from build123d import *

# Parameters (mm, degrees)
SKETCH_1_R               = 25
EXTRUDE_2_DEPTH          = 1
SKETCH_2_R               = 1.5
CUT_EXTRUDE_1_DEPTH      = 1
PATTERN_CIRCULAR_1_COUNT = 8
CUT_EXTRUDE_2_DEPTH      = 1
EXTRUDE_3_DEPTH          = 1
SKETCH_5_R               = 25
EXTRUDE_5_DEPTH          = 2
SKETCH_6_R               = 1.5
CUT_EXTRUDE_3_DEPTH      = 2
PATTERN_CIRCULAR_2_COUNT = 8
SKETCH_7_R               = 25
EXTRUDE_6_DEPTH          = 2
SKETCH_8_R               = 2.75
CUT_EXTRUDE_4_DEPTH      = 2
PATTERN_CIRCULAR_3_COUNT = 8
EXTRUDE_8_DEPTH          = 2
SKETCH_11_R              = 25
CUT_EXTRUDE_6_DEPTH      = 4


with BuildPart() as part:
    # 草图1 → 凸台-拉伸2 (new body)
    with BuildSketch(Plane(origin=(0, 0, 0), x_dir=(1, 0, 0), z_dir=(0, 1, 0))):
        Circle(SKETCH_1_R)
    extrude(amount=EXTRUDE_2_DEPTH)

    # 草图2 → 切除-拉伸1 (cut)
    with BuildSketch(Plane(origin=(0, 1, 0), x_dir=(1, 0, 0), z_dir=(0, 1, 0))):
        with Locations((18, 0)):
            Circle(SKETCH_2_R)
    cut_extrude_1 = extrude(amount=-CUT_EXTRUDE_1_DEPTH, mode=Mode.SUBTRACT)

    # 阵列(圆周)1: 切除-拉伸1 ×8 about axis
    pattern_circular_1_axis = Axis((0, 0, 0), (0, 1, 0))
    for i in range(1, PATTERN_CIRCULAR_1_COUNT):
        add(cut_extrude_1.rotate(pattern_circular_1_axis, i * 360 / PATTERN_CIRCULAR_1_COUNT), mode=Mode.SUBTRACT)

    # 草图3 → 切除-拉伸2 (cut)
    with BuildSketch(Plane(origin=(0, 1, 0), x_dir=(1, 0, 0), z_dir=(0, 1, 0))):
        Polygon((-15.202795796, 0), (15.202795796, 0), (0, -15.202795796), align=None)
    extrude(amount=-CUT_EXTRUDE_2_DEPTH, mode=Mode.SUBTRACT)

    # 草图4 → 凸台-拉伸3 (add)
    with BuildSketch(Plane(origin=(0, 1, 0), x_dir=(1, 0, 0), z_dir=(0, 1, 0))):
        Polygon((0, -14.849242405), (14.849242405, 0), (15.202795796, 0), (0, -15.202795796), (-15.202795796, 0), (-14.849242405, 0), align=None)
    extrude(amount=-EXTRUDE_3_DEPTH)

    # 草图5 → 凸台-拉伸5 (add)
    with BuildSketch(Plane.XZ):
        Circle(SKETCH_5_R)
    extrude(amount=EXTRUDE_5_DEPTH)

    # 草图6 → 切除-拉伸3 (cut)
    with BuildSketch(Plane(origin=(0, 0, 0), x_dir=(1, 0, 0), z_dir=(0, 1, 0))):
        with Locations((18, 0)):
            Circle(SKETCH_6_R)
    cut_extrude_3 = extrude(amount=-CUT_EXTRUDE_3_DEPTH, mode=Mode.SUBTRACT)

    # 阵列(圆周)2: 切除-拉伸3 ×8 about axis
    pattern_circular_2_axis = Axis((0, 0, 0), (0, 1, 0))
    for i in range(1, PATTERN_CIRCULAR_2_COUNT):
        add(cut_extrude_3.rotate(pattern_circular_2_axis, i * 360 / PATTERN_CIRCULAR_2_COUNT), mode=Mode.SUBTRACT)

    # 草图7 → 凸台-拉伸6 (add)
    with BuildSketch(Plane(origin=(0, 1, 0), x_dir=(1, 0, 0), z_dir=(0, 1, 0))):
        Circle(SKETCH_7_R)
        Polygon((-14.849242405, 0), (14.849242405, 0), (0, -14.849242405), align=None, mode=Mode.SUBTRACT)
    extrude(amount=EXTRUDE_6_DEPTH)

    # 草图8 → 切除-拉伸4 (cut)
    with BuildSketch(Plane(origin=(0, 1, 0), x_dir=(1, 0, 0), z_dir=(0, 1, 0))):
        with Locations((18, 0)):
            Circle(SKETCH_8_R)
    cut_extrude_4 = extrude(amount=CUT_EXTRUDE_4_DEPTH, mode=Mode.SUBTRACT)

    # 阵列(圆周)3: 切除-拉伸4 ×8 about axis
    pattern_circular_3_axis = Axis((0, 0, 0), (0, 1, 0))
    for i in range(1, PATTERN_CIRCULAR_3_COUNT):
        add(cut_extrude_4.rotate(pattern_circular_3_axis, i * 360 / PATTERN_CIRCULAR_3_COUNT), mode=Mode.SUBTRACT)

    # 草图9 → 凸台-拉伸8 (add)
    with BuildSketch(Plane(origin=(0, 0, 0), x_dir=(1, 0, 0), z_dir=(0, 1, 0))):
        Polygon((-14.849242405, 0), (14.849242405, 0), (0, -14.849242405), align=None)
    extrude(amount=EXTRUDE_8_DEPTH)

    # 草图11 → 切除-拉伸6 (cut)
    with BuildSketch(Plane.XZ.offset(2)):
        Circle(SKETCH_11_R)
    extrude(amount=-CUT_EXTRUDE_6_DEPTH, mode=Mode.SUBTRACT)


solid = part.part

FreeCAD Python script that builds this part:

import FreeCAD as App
import Part
import Sketcher

doc = App.newDocument("Part")
params = doc.addObject("Spreadsheet::Sheet", "Params")
for row, (alias, value) in enumerate([
    ("sketch1_diameter", "50 mm"),
    ("pad1_length", "1 mm"),
    ("sketch2_diameter", "3 mm"),
    ("pocket1_length", "1 mm"),
    ("sketch3_length", "21.5 mm"),
    ("pocket2_length", "1 mm"),
    ("sketch4_length", "21 mm"),
    ("sketch4_length2", "21.5 mm"),
    ("pad2_length", "1 mm"),
    ("sketch5_diameter", "50 mm"),
    ("pad3_length", "2 mm"),
    ("sketch6_diameter", "3 mm"),
    ("pocket3_length", "2 mm"),
    ("sketch7_diameter", "50 mm"),
    ("sketch7_length", "21 mm"),
    ("pad4_length", "2 mm"),
    ("sketch8_diameter", "5.5 mm"),
    ("pocket4_length", "2 mm"),
    ("sketch9_length", "21 mm"),
    ("pad5_length", "2 mm"),
    ("sketch10_diameter", "50 mm"),
    ("pocket5_length", "4 mm"),
], start=1):
    params.set(f"A{row}", alias)
    params.set(f"B{row}", "=" + value)
    params.setAlias(f"B{row}", alias)

body = doc.addObject("PartDesign::Body", "Body")

sketch1 = doc.addObject("Sketcher::SketchObject", "Sketch")
body.addObject(sketch1)
sketch1.AttachmentSupport = (doc.XZ_Plane, [""])
sketch1.MapMode = "FlatFace"
sketch1.addGeometry(Part.Circle(App.Vector(0, 0, 0), App.Vector(0, 0, 1), 25), False)
sketch1.addConstraint([
    Sketcher.Constraint("Coincident", 0, 3, -1, 1),
    Sketcher.Constraint("Diameter", 0, 50.0),
])
sketch1.setExpression("Constraints[1]", "Params.sketch1_diameter")
pad1 = doc.addObject("PartDesign::Pad", "Pad")
body.addObject(pad1)
pad1.Profile = sketch1
pad1.setExpression("Length", "Params.pad1_length")
pad1.Reversed = True

sketch2 = doc.addObject("Sketcher::SketchObject", "Sketch001")
body.addObject(sketch2)
sketch2.AttachmentSupport = (doc.XZ_Plane, [""])
sketch2.MapMode = "FlatFace"
sketch2.AttachmentOffset = App.Placement(App.Vector(0, 0, -1), App.Rotation())
sketch2.addGeometry(Part.Circle(App.Vector(18, 0, 0), App.Vector(0, 0, 1), 1.5), False)
sketch2.addConstraint([
    Sketcher.Constraint("PointOnObject", 0, 3, -1),
    Sketcher.Constraint("Diameter", 0, 3.0),
    Sketcher.Constraint("DistanceX", -1, 1, 0, 3, 18.0),
])
sketch2.setExpression("Constraints[1]", "Params.sketch2_diameter")
pocket1 = doc.addObject("PartDesign::Pocket", "Pocket")
body.addObject(pocket1)
pocket1.Profile = sketch2
pocket1.setExpression("Length", "Params.pocket1_length")
pocket1.Reversed = True
doc.recompute()

polarpattern = doc.addObject("PartDesign::PolarPattern", "PolarPattern")
body.addObject(polarpattern)
polarpattern.Originals = [pocket1]
polarpattern.Axis = (doc.Y_Axis, [""])
polarpattern.Angle = 360
polarpattern.Occurrences = 8
body.Tip = polarpattern

sketch3 = doc.addObject("Sketcher::SketchObject", "Sketch002")
body.addObject(sketch3)
sketch3.AttachmentSupport = (doc.XZ_Plane, [""])
sketch3.MapMode = "FlatFace"
sketch3.AttachmentOffset = App.Placement(App.Vector(0, 0, -1), App.Rotation())
sketch3.addGeometry([
    Part.LineSegment(App.Vector(15, 0, 0), App.Vector(-15, 0, 0)),
    Part.LineSegment(App.Vector(-15, 0, 0), App.Vector(0, 15, 0)),
    Part.LineSegment(App.Vector(0, 15, 0), App.Vector(15, 0, 0)),
], False)
sketch3.addConstraint([
    Sketcher.Constraint("Coincident", 0, 2, 1, 1),
    Sketcher.Constraint("Coincident", 1, 2, 2, 1),
    Sketcher.Constraint("Coincident", 2, 2, 0, 1),
    Sketcher.Constraint("Horizontal", 0),
    Sketcher.Constraint("Symmetric", 0, 2, 2, 2, -1, 1),
    Sketcher.Constraint("PointOnObject", 1, 2, -2),
    Sketcher.Constraint("Perpendicular", 1, 2),
    Sketcher.Constraint("Distance", 1, 21.5),
])
sketch3.setExpression("Constraints[7]", "Params.sketch3_length")
pocket2 = doc.addObject("PartDesign::Pocket", "Pocket001")
body.addObject(pocket2)
pocket2.Profile = sketch3
pocket2.setExpression("Length", "Params.pocket2_length")
pocket2.Reversed = True

sketch4 = doc.addObject("Sketcher::SketchObject", "Sketch003")
body.addObject(sketch4)
sketch4.AttachmentSupport = (doc.XZ_Plane, [""])
sketch4.MapMode = "FlatFace"
sketch4.AttachmentOffset = App.Placement(App.Vector(0, 0, -1), App.Rotation())
sketch4.addGeometry([
    Part.LineSegment(App.Vector(14.85, 0, 0), App.Vector(0, 14.85, 0)),
    Part.LineSegment(App.Vector(0, 14.85, 0), App.Vector(-14.85, 0, 0)),
    Part.LineSegment(App.Vector(-14.85, 0, 0), App.Vector(-15.2, 0, 0)),
    Part.LineSegment(App.Vector(-15.2, 0, 0), App.Vector(0, 15.2, 0)),
    Part.LineSegment(App.Vector(0, 15.2, 0), App.Vector(15.2, 0, 0)),
    Part.LineSegment(App.Vector(15.2, 0, 0), App.Vector(14.85, 0, 0)),
], False)
sketch4.addConstraint([
    Sketcher.Constraint("Coincident", 0, 2, 1, 1),
    Sketcher.Constraint("Coincident", 1, 2, 2, 1),
    Sketcher.Constraint("Coincident", 2, 2, 3, 1),
    Sketcher.Constraint("Coincident", 3, 2, 4, 1),
    Sketcher.Constraint("Coincident", 4, 2, 5, 1),
    Sketcher.Constraint("Coincident", 5, 2, 0, 1),
    Sketcher.Constraint("Horizontal", 2),
    Sketcher.Constraint("Horizontal", 5),
    Sketcher.Constraint("Symmetric", 2, 2, 4, 2, -1, 1),
    Sketcher.Constraint("Symmetric", 1, 2, 5, 2, -2),
    Sketcher.Constraint("PointOnObject", 0, 2, -2),
    Sketcher.Constraint("PointOnObject", 3, 2, -2),
    Sketcher.Constraint("Perpendicular", 0, 1),
    Sketcher.Constraint("Parallel", 1, 3),
    Sketcher.Constraint("Distance", 0, 21.0),
    Sketcher.Constraint("Distance", 3, 21.5),
])
sketch4.setExpression("Constraints[14]", "Params.sketch4_length")
sketch4.setExpression("Constraints[15]", "Params.sketch4_length2")
pad2 = doc.addObject("PartDesign::Pad", "Pad001")
body.addObject(pad2)
pad2.Profile = sketch4
pad2.setExpression("Length", "Params.pad2_length")

sketch5 = doc.addObject("Sketcher::SketchObject", "Sketch004")
body.addObject(sketch5)
sketch5.AttachmentSupport = (doc.XZ_Plane, [""])
sketch5.MapMode = "FlatFace"
sketch5.addGeometry(Part.Circle(App.Vector(0, 0, 0), App.Vector(0, 0, 1), 25), False)
sketch5.addConstraint([
    Sketcher.Constraint("Coincident", 0, 3, -1, 1),
    Sketcher.Constraint("Diameter", 0, 50.0),
])
sketch5.setExpression("Constraints[1]", "Params.sketch5_diameter")
pad3 = doc.addObject("PartDesign::Pad", "Pad002")
body.addObject(pad3)
pad3.Profile = sketch5
pad3.setExpression("Length", "Params.pad3_length")

sketch6 = doc.addObject("Sketcher::SketchObject", "Sketch005")
body.addObject(sketch6)
sketch6.AttachmentSupport = (doc.XZ_Plane, [""])
sketch6.MapMode = "FlatFace"
sketch6.addGeometry(Part.Circle(App.Vector(18, 0, 0), App.Vector(0, 0, 1), 1.5), False)
sketch6.addConstraint([
    Sketcher.Constraint("PointOnObject", 0, 3, -1),
    Sketcher.Constraint("Diameter", 0, 3.0),
    Sketcher.Constraint("DistanceX", -1, 1, 0, 3, 18.0),
])
sketch6.setExpression("Constraints[1]", "Params.sketch6_diameter")
pocket3 = doc.addObject("PartDesign::Pocket", "Pocket002")
body.addObject(pocket3)
pocket3.Profile = sketch6
pocket3.setExpression("Length", "Params.pocket3_length")
pocket3.Reversed = True
doc.recompute()

polarpattern2 = doc.addObject("PartDesign::PolarPattern", "PolarPattern001")
body.addObject(polarpattern2)
polarpattern2.Originals = [pocket3]
polarpattern2.Axis = (doc.Y_Axis, [""])
polarpattern2.Angle = 360
polarpattern2.Occurrences = 8
body.Tip = polarpattern2

sketch7 = doc.addObject("Sketcher::SketchObject", "Sketch006")
body.addObject(sketch7)
sketch7.AttachmentSupport = (doc.XZ_Plane, [""])
sketch7.MapMode = "FlatFace"
sketch7.AttachmentOffset = App.Placement(App.Vector(0, 0, -1), App.Rotation())
sketch7.addGeometry([
    Part.Circle(App.Vector(0, 0, 0), App.Vector(0, 0, 1), 25),
    Part.LineSegment(App.Vector(0, 15, 0), App.Vector(-15, 0, 0)),
    Part.LineSegment(App.Vector(-15, 0, 0), App.Vector(15, 0, 0)),
    Part.LineSegment(App.Vector(15, 0, 0), App.Vector(0, 15, 0)),
], False)
sketch7.addConstraint([
    Sketcher.Constraint("Coincident", 1, 2, 2, 1),
    Sketcher.Constraint("Coincident", 2, 2, 3, 1),
    Sketcher.Constraint("Coincident", 3, 2, 1, 1),
    Sketcher.Constraint("Horizontal", 2),
    Sketcher.Constraint("Coincident", 0, 3, -1, 1),
    Sketcher.Constraint("Symmetric", 1, 2, 2, 2, -1, 1),
    Sketcher.Constraint("PointOnObject", 3, 2, -2),
    Sketcher.Constraint("Perpendicular", 1, 3),
    Sketcher.Constraint("Diameter", 0, 50.0),
    Sketcher.Constraint("Distance", 1, 21.0),
])
sketch7.setExpression("Constraints[8]", "Params.sketch7_diameter")
sketch7.setExpression("Constraints[9]", "Params.sketch7_length")
pad4 = doc.addObject("PartDesign::Pad", "Pad003")
body.addObject(pad4)
pad4.Profile = sketch7
pad4.setExpression("Length", "Params.pad4_length")
pad4.Reversed = True

sketch8 = doc.addObject("Sketcher::SketchObject", "Sketch007")
body.addObject(sketch8)
sketch8.AttachmentSupport = (doc.XZ_Plane, [""])
sketch8.MapMode = "FlatFace"
sketch8.AttachmentOffset = App.Placement(App.Vector(0, 0, -1), App.Rotation())
sketch8.addGeometry(Part.Circle(App.Vector(18, 0, 0), App.Vector(0, 0, 1), 2.8), False)
sketch8.addConstraint([
    Sketcher.Constraint("PointOnObject", 0, 3, -1),
    Sketcher.Constraint("Diameter", 0, 5.5),
    Sketcher.Constraint("DistanceX", -1, 1, 0, 3, 18.0),
])
sketch8.setExpression("Constraints[1]", "Params.sketch8_diameter")
pocket4 = doc.addObject("PartDesign::Pocket", "Pocket003")
body.addObject(pocket4)
pocket4.Profile = sketch8
pocket4.setExpression("Length", "Params.pocket4_length")
doc.recompute()

polarpattern3 = doc.addObject("PartDesign::PolarPattern", "PolarPattern002")
body.addObject(polarpattern3)
polarpattern3.Originals = [pocket4]
polarpattern3.Axis = (doc.Y_Axis, [""])
polarpattern3.Angle = 360
polarpattern3.Occurrences = 8
body.Tip = polarpattern3

sketch9 = doc.addObject("Sketcher::SketchObject", "Sketch008")
body.addObject(sketch9)
sketch9.AttachmentSupport = (doc.XZ_Plane, [""])
sketch9.MapMode = "FlatFace"
sketch9.addGeometry([
    Part.LineSegment(App.Vector(15, 0, 0), App.Vector(-15, 0, 0)),
    Part.LineSegment(App.Vector(-15, 0, 0), App.Vector(0, 15, 0)),
    Part.LineSegment(App.Vector(0, 15, 0), App.Vector(15, 0, 0)),
], False)
sketch9.addConstraint([
    Sketcher.Constraint("Coincident", 0, 2, 1, 1),
    Sketcher.Constraint("Coincident", 1, 2, 2, 1),
    Sketcher.Constraint("Coincident", 2, 2, 0, 1),
    Sketcher.Constraint("Horizontal", 0),
    Sketcher.Constraint("Symmetric", 0, 2, 2, 2, -1, 1),
    Sketcher.Constraint("PointOnObject", 1, 2, -2),
    Sketcher.Constraint("Perpendicular", 1, 2),
    Sketcher.Constraint("Distance", 1, 21.0),
])
sketch9.setExpression("Constraints[7]", "Params.sketch9_length")
pad5 = doc.addObject("PartDesign::Pad", "Pad004")
body.addObject(pad5)
pad5.Profile = sketch9
pad5.setExpression("Length", "Params.pad5_length")
pad5.Reversed = True

sketch10 = doc.addObject("Sketcher::SketchObject", "Sketch009")
body.addObject(sketch10)
sketch10.AttachmentSupport = (doc.XZ_Plane, [""])
sketch10.MapMode = "FlatFace"
sketch10.AttachmentOffset = App.Placement(App.Vector(0, 0, 2), App.Rotation())
sketch10.addGeometry(Part.Circle(App.Vector(0, 0, 0), App.Vector(0, 0, 1), 25), False)
sketch10.addConstraint([
    Sketcher.Constraint("Coincident", 0, 3, -1, 1),
    Sketcher.Constraint("Diameter", 0, 50.0),
])
sketch10.setExpression("Constraints[1]", "Params.sketch10_diameter")
pocket5 = doc.addObject("PartDesign::Pocket", "Pocket004")
body.addObject(pocket5)
pocket5.Profile = sketch10
pocket5.setExpression("Length", "Params.pocket5_length")

doc.recompute()
